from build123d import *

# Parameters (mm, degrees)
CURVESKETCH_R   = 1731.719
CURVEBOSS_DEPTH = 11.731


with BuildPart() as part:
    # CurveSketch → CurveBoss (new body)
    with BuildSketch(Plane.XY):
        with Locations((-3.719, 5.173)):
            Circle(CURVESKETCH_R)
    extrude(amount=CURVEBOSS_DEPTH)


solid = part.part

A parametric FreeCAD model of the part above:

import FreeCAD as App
import Part
import Sketcher

V = App.Vector
Q = App.Units.Quantity

doc = App.newDocument("Part")
params = doc.addObject("Spreadsheet::Sheet", "Params")
for row, (alias, value) in enumerate([
    ("pad1_length", "11.731 mm"),
], start=1):
    params.set(f"A{row}", alias)
    params.set(f"B{row}", "=" + value)
    params.setAlias(f"B{row}", alias)

body = doc.addObject("PartDesign::Body", "Body")

# Sketch on XY plane
sketch1 = body.newObject("Sketcher::SketchObject", "Sketch")
sketch1.AttachmentSupport = (doc.getObject("XY_Plane"), [""])
sketch1.MapMode = "FlatFace"
sketch1.addGeometry(Part.Circle(V(-3.719, 5.173, 0), V(0, 0, 1), 1731.719), False)
sketch1.addConstraint([
    Sketcher.Constraint("Diameter", 0, Q("3463.438 mm")),
    Sketcher.Constraint("DistanceX", 0, 3, -1, 1, Q("3.719 mm")),
    Sketcher.Constraint("DistanceY", -1, 1, 0, 3, Q("5.173 mm")),
])
pad1 = body.newObject("PartDesign::Pad", "Pad")
pad1.Profile = sketch1
pad1.setExpression("Length", "Params.pad1_length")

doc.recompute()
